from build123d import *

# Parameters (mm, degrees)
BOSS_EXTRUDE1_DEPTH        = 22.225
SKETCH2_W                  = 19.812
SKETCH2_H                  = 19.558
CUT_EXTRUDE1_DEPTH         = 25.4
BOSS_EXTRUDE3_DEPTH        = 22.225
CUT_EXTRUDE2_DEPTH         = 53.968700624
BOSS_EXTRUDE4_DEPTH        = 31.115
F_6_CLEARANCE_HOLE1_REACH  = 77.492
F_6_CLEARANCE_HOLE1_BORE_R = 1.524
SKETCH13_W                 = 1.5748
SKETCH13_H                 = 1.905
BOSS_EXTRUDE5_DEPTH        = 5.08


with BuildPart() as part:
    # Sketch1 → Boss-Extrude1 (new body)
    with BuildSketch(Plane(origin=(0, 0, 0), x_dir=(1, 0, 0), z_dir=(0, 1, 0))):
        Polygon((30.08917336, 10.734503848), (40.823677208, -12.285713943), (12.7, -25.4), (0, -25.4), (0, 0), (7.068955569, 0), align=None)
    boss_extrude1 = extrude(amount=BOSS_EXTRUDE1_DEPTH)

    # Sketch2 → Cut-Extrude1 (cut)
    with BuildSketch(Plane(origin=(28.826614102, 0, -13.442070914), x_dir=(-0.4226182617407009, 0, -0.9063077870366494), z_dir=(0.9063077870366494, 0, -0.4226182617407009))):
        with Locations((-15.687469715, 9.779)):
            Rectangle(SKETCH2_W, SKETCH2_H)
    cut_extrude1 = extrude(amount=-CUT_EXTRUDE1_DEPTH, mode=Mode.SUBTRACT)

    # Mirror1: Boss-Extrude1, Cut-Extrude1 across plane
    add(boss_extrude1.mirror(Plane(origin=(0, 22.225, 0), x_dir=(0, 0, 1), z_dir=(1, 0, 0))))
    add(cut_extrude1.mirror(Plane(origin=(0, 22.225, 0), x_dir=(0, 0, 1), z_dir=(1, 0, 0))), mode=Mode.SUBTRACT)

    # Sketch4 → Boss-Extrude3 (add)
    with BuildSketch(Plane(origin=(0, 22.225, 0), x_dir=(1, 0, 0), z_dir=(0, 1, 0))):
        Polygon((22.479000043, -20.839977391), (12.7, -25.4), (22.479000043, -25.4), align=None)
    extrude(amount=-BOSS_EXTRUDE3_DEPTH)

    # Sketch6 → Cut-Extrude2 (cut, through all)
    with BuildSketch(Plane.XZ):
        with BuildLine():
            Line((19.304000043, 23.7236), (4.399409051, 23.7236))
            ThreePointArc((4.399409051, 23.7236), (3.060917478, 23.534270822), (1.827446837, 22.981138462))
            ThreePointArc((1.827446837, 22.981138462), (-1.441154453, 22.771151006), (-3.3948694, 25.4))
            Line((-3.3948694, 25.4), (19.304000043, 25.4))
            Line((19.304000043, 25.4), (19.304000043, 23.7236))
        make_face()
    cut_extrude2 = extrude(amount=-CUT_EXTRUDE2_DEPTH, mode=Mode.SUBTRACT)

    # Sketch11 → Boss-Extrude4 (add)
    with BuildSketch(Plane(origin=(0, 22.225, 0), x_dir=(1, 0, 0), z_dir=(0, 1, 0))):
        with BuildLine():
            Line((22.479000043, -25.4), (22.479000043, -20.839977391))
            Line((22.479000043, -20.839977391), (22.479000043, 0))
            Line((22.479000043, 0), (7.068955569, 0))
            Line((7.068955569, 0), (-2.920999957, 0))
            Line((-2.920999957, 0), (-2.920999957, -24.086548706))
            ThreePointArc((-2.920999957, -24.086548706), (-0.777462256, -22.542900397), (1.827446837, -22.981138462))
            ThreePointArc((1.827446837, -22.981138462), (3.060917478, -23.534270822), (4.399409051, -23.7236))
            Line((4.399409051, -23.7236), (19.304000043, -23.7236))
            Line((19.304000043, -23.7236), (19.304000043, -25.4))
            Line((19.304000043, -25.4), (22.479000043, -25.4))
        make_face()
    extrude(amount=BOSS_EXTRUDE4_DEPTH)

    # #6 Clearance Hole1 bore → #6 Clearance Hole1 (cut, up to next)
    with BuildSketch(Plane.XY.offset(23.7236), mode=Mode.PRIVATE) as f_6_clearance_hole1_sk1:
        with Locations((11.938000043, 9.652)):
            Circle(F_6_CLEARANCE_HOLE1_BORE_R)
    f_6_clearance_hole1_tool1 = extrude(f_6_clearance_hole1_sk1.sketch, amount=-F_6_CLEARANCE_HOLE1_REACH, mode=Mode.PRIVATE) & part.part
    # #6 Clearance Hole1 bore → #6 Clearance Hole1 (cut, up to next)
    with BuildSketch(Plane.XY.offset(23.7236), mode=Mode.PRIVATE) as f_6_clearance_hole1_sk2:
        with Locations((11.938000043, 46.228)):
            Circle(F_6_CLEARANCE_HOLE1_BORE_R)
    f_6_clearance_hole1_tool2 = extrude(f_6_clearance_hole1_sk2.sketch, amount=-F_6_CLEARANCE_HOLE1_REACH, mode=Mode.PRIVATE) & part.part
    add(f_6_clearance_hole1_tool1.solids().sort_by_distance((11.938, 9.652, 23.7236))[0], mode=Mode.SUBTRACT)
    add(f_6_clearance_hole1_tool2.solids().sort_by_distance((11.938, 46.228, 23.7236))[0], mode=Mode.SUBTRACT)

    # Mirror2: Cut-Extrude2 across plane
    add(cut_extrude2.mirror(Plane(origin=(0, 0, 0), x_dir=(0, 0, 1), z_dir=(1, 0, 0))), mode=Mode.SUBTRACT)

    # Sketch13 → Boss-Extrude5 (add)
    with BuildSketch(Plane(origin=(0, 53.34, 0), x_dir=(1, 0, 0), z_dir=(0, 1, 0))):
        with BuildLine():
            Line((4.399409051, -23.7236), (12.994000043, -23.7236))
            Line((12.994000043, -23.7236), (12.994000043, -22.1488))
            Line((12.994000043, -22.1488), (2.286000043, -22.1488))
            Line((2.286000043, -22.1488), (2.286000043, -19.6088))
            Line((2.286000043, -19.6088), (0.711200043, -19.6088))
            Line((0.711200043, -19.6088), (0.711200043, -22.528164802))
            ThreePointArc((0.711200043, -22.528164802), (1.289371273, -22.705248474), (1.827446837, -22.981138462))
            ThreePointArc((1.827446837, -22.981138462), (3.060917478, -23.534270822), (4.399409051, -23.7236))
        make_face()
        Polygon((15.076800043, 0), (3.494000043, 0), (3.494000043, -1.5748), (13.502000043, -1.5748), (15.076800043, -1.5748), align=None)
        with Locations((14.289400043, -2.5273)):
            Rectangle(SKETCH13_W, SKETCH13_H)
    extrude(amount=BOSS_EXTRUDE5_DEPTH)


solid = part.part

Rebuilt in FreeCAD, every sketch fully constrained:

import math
import FreeCAD as App
import Part
import Sketcher
from FreeCAD import Vector
Q = App.Units.Quantity


def add_polygon(sketch, points):
    """Adds a closed chain of lines whose ends are joined by coincident constraints."""
    first, n = sketch.GeometryCount, len(points)
    for a, b in zip(points, points[1:] + points[:1]):
        sketch.addGeometry(Part.LineSegment(App.Vector(*a, 0), App.Vector(*b, 0)), False)
    for i in range(n):
        sketch.addConstraint(Sketcher.Constraint("Coincident", first + i, 2, first + (i + 1) % n, 1))

doc = App.newDocument("Part")
params = doc.addObject("Spreadsheet::Sheet", "Params")
for row, (alias, value) in enumerate([
    ("sketch1_height", "1 in"),
    ("sketch1_length", "1 in"),
    ("sketch1_width", "0.5 in"),
    ("pad1_length", "0.875 in"),
    ("sketch2_width", "0.78 in"),
    ("sketch2_height", "0.77 in"),
    ("pocket1_length", "1 in"),
    ("sketch3_width", "0.385 in"),
    ("pad2_length", "0.875 in"),
    ("sketch4_radius", "0.19 in"),
    ("sketch4_radius2", "0.135 in"),
    ("sketch4_height", "0.066 in"),
    ("sketch5_width", "1 in"),
    ("sketch5_radius", "0.19 in"),
    ("sketch5_radius2", "0.135 in"),
    ("sketch5_width2", "0.125 in"),
    ("sketch5_height", "0.066 in"),
    ("pad3_length", "1.225 in"),
    ("sketch6_diameter", "0.12 in"),
    ("sketch7_diameter", "0.12 in"),
    ("sketch8_radius", "0.19 in"),
    ("sketch8_height", "0.1 in"),
    ("sketch8_radius2", "0.135 in"),
    ("sketch8_width", "0.062 in"),
    ("sketch8_height2", "0.075 in"),
    ("pad4_length", "0.2 in"),
], start=1):
    params.set(f"A{row}", alias)
    params.set(f"B{row}", "=" + value)
    params.setAlias(f"B{row}", alias)

body = doc.addObject("PartDesign::Body", "Body")

sketch1 = doc.addObject("Sketcher::SketchObject", "Sketch")
body.addObject(sketch1)
sketch1.AttachmentSupport = (doc.XZ_Plane, [""])
sketch1.MapMode = "FlatFace"
add_polygon(sketch1, [(41, 12), (30, -11), (7, 0), (0, 0), (0, 25), (13, 25)])
sketch1.addConstraint([
    Sketcher.Constraint("Horizontal", 2),
    Sketcher.Constraint("Vertical", 3),
    Sketcher.Constraint("Horizontal", 4),
    Sketcher.Constraint("Coincident", 2, 2, -1, 1),
    Sketcher.Constraint("Perpendicular", 0, 1),
    Sketcher.Constraint("Parallel", 1, 5),
    Sketcher.Constraint("Equal", 0, 1),
    Sketcher.Constraint("DistanceY", 3, 1, 3, 2, Q("1 in")),
    Sketcher.Constraint("Distance", 0, Q("1 in")),
    Sketcher.Constraint("DistanceX", 4, 1, 4, 2, Q("0.5 in")),
    Sketcher.Constraint("Angle", 0, Q("-115 deg")),
])
sketch1.setExpression("Constraints[13]", "Params.sketch1_height")
sketch1.setExpression("Constraints[14]", "Params.sketch1_length")
sketch1.setExpression("Constraints[15]", "Params.sketch1_width")
pad1 = doc.addObject("PartDesign::Pad", "Pad")
body.addObject(pad1)
pad1.Profile = sketch1
pad1.setExpression("Length", "Params.pad1_length")
pad1.Reversed = True

sketch2 = doc.addObject("Sketcher::SketchObject", "Sketch001")
body.addObject(sketch2)
sketch2.Placement = App.Placement(Vector(28.826614, 0, -13.442071), App.Rotation(Vector(-0.422618262, 0, -0.906307787), Vector(0, 1, 0), Vector(0.906307787, 0, -0.422618262), "ZXY"))
add_polygon(sketch2, [(-26, 20), (-26, 0), (-6, 0), (-6, 20)])
sketch2.addConstraint([
    Sketcher.Constraint("Vertical", 0),
    Sketcher.Constraint("Horizontal", 1),
    Sketcher.Constraint("Vertical", 2),
    Sketcher.Constraint("Horizontal", 3),
    Sketcher.Constraint("PointOnObject", 0, 2, -1),
    Sketcher.Constraint("DistanceX", 1, 1, 1, 2, Q("0.78 in")),
    Sketcher.Constraint("DistanceY", 0, 2, 0, 1, Q("0.77 in")),
    Sketcher.Constraint("DistanceX", 0, 2, -1, 1, 25.59347),
])
sketch2.setExpression("Constraints[9]", "Params.sketch2_width")
sketch2.setExpression("Constraints[10]", "Params.sketch2_height")
pocket1 = doc.addObject("PartDesign::Pocket", "Pocket")
body.addObject(pocket1)
pocket1.Profile = sketch2
pocket1.setExpression("Length", "Params.pocket1_length")
doc.recompute()

mirrored = doc.addObject("PartDesign::Mirrored", "Mirrored")
body.addObject(mirrored)
mirrored.Originals = [pad1, pocket1]
mirrored.MirrorPlane = (doc.YZ_Plane, [""])
body.Tip = mirrored

sketch3 = doc.addObject("Sketcher::SketchObject", "Sketch002")
body.addObject(sketch3)
sketch3.AttachmentSupport = (doc.XZ_Plane, [""])
sketch3.MapMode = "FlatFace"
sketch3.AttachmentOffset = App.Placement(Vector(0, 0, -0.875 * 25.4), App.Rotation())
add_polygon(sketch3, [(22.5, 20.8), (12.7, 25.4), (22.5, 25.4)])
sketch3.addConstraint([
    Sketcher.Constraint("Horizontal", 1),
    Sketcher.Constraint("Vertical", 2),
    Sketcher.Constraint("DistanceY", -1, 1, 0, 2, Q("1 in")),
    Sketcher.Constraint("Angle", 0, Q("155 deg")),
    Sketcher.Constraint("DistanceX", -1, 1, 0, 2, Q("0.5 in")),
    Sketcher.Constraint("DistanceX", 1, 1, 1, 2, Q("0.385 in")),
])
sketch3.setExpression("Constraints[8]", "Params.sketch3_width")
pad2 = doc.addObject("PartDesign::Pad", "Pad001")
body.addObject(pad2)
pad2.Profile = sketch3
pad2.setExpression("Length", "Params.pad2_length")

sketch4 = doc.addObject("Sketcher::SketchObject", "Sketch003")
body.addObject(sketch4)
sketch4.AttachmentSupport = (doc.XZ_Plane, [""])
sketch4.MapMode = "FlatFace"
sketch4.addGeometry([
    Part.LineSegment(Vector(4.4, 23.7, 0), Vector(19.3, 23.7, 0)),
    Part.LineSegment(Vector(19.3, 23.7, 0), Vector(19.3, 25.4, 0)),
    Part.LineSegment(Vector(19.3, 25.4, 0), Vector(-3.4, 25.4, 0)),
    Part.ArcOfCircle(Part.Circle(Vector(0, 25.9, 0), Vector(0, 0, 1), 3.4), math.radians(-172), math.radians(-58)),
    Part.ArcOfCircle(Part.Circle(Vector(4.4, 18.9, 0), Vector(0, 0, 1), 4.8), math.radians(90), math.radians(122)),
], False)
sketch4.addConstraint([
    Sketcher.Constraint("Coincident", 0, 2, 1, 1),
    Sketcher.Constraint("Coincident", 1, 2, 2, 1),
    Sketcher.Constraint("Coincident", 2, 2, 3, 1),
    Sketcher.Constraint("Tangent", 3, 2, 4, 2),
    Sketcher.Constraint("Tangent", 4, 1, 0, 1),
    Sketcher.Constraint("Horizontal", 0),
    Sketcher.Constraint("Vertical", 1),
    Sketcher.Constraint("Horizontal", 2),
    Sketcher.Constraint("PointOnObject", 3, 3, -2),
    Sketcher.Constraint("Radius", 4, Q("0.19 in")),
    Sketcher.Constraint("DistanceY", -1, 1, 1, 2, Q("1 in")),
    Sketcher.Constraint("Radius", 3, Q("0.135 in")),
    Sketcher.Constraint("DistanceY", 1, 1, 1, 2, Q("0.066 in")),
    Sketcher.Constraint("DistanceX", -1, 1, 0, 2, Q("0.76 in")),
    Sketcher.Constraint("DistanceY", -1, 1, 3, 3, Q("1.019 in")),
])
sketch4.setExpression("Constraints[9]", "Params.sketch4_radius")
sketch4.setExpression("Constraints[11]", "Params.sketch4_radius2")
sketch4.setExpression("Constraints[12]", "Params.sketch4_height")
pocket2 = doc.addObject("PartDesign::Pocket", "Pocket001")
body.addObject(pocket2)
pocket2.Profile = sketch4
pocket2.Type = "ThroughAll"

sketch5 = doc.addObject("Sketcher::SketchObject", "Sketch004")
body.addObject(sketch5)
sketch5.AttachmentSupport = (doc.XZ_Plane, [""])
sketch5.MapMode = "FlatFace"
sketch5.AttachmentOffset = App.Placement(Vector(0, 0, -0.875 * 25.4), App.Rotation())
sketch5.addGeometry([
    Part.LineSegment(Vector(22.5, 25.4, 0), Vector(22.5, 0, 0)),
    Part.LineSegment(Vector(22.5, 0, 0), Vector(-2.9, 0, 0)),
    Part.LineSegment(Vector(-2.9, 0, 0), Vector(-2.9, 24.1, 0)),
    Part.ArcOfCircle(Part.Circle(Vector(0, 25.9, 0), Vector(0, 0, 1), 3.4), math.radians(-148), math.radians(-58)),
    Part.ArcOfCircle(Part.Circle(Vector(4.4, 18.9, 0), Vector(0, 0, 1), 4.8), math.radians(90), math.radians(122)),
    Part.LineSegment(Vector(4.4, 23.7, 0), Vector(19.3, 23.7, 0)),
    Part.LineSegment(Vector(19.3, 23.7, 0), Vector(19.3, 25.4, 0)),
    Part.LineSegment(Vector(19.3, 25.4, 0), Vector(22.5, 25.4, 0)),
], False)
sketch5.addConstraint([
    Sketcher.Constraint("Coincident", 0, 2, 1, 1),
    Sketcher.Constraint("Coincident", 1, 2, 2, 1),
    Sketcher.Constraint("Coincident", 2, 2, 3, 1),
    Sketcher.Constraint("Tangent", 3, 2, 4, 2),
    Sketcher.Constraint("Tangent", 4, 1, 5, 1),
    Sketcher.Constraint("Coincident", 5, 2, 6, 1),
    Sketcher.Constraint("Coincident", 6, 2, 7, 1),
    Sketcher.Constraint("Coincident", 7, 2, 0, 1),
    Sketcher.Constraint("Vertical", 0),
    Sketcher.Constraint("Horizontal", 1),
    Sketcher.Constraint("Vertical", 2),
    Sketcher.Constraint("Horizontal", 5),
    Sketcher.Constraint("Vertical", 6),
    Sketcher.Constraint("Horizontal", 7),
    Sketcher.Constraint("PointOnObject", 3, 3, -2),
    Sketcher.Constraint("PointOnObject", 0, 2, -1),
    Sketcher.Constraint("Equal", 1, 0),
    Sketcher.Constraint("DistanceX", 1, 2, 1, 1, Q("1 in")),
    Sketcher.Constraint("Radius", 4, Q("0.19 in")),
    Sketcher.Constraint("Radius", 3, Q("0.135 in")),
    Sketcher.Constraint("DistanceX", 7, 1, 7, 2, Q("0.125 in")),
    Sketcher.Constraint("DistanceY", 6, 1, 6, 2, Q("0.066 in")),
    Sketcher.Constraint("DistanceX", -1, 1, 5, 2, Q("0.76 in")),
    Sketcher.Constraint("DistanceY", -1, 1, 3, 3, Q("1.019 in")),
])
sketch5.setExpression("Constraints[17]", "Params.sketch5_width")
sketch5.setExpression("Constraints[18]", "Params.sketch5_radius")
sketch5.setExpression("Constraints[19]", "Params.sketch5_radius2")
sketch5.setExpression("Constraints[20]", "Params.sketch5_width2")
sketch5.setExpression("Constraints[21]", "Params.sketch5_height")
pad3 = doc.addObject("PartDesign::Pad", "Pad002")
body.addObject(pad3)
pad3.Profile = sketch5
pad3.setExpression("Length", "Params.pad3_length")
pad3.Reversed = True

sketch6 = doc.addObject("Sketcher::SketchObject", "Sketch005")
body.addObject(sketch6)
sketch6.AttachmentSupport = (doc.XY_Plane, [""])
sketch6.MapMode = "FlatFace"
sketch6.AttachmentOffset = App.Placement(Vector(0, 0, 0.934 * 25.4), App.Rotation())
sketch6.addGeometry(Part.Circle(Vector(11.9, 9.7, 0), Vector(0, 0, 1), 1.5), False)
sketch6.addConstraint([
    Sketcher.Constraint("Diameter", 0, Q("0.12 in")),
    Sketcher.Constraint("DistanceX", -1, 1, 0, 3, Q("0.47 in")),
    Sketcher.Constraint("DistanceY", -1, 1, 0, 3, Q("0.38 in")),
])
sketch6.setExpression("Constraints[0]", "Params.sketch6_diameter")
pocket3 = doc.addObject("PartDesign::Pocket", "Pocket002")
body.addObject(pocket3)
pocket3.Profile = sketch6
pocket3.Type = "UpToFirst"

sketch7 = doc.addObject("Sketcher::SketchObject", "Sketch006")
body.addObject(sketch7)
sketch7.AttachmentSupport = (doc.XY_Plane, [""])
sketch7.MapMode = "FlatFace"
sketch7.AttachmentOffset = App.Placement(Vector(0, 0, 0.934 * 25.4), App.Rotation())
sketch7.addGeometry(Part.Circle(Vector(11.9, 46.2, 0), Vector(0, 0, 1), 1.5), False)
sketch7.addConstraint([
    Sketcher.Constraint("Diameter", 0, Q("0.12 in")),
    Sketcher.Constraint("DistanceX", -1, 1, 0, 3, Q("0.47 in")),
    Sketcher.Constraint("DistanceY", -1, 1, 0, 3, Q("1.82 in")),
])
sketch7.setExpression("Constraints[0]", "Params.sketch7_diameter")
pocket4 = doc.addObject("PartDesign::Pocket", "Pocket003")
body.addObject(pocket4)
pocket4.Profile = sketch7
pocket4.Type = "UpToFirst"
doc.recompute()

mirrored2 = doc.addObject("PartDesign::Mirrored", "Mirrored001")
body.addObject(mirrored2)
mirrored2.Originals = [pocket2]
mirrored2.MirrorPlane = (doc.YZ_Plane, [""])
body.Tip = mirrored2

sketch8 = doc.addObject("Sketcher::SketchObject", "Sketch007")
body.addObject(sketch8)
sketch8.AttachmentSupport = (doc.XZ_Plane, [""])
sketch8.MapMode = "FlatFace"
sketch8.AttachmentOffset = App.Placement(Vector(0, 0, -2.1 * 25.4), App.Rotation())
sketch8.addGeometry(Part.LineSegment(Vector(4.4, 23.7, 0), Vector(13, 23.7, 0)), False)
sketch8.addGeometry(Part.LineSegment(Vector(13, 23.7, 0), Vector(13, 22.1, 0)), False)
sketch8.addGeometry(Part.LineSegment(Vector(13, 22.1, 0), Vector(2.3, 22.1, 0)), False)
sketch8.addGeometry(Part.LineSegment(Vector(2.3, 22.1, 0), Vector(2.3, 19.6, 0)), False)
sketch8.addGeometry(Part.LineSegment(Vector(2.3, 19.6, 0), Vector(0.7, 19.6, 0)), False)
sketch8.addGeometry(Part.LineSegment(Vector(0.7, 19.6, 0), Vector(0.7, 22.5, 0)), False)
sketch8.addGeometry(Part.ArcOfCircle(Part.Circle(Vector(0, 25.9, 0), Vector(0, 0, 1), 3.4), math.radians(-78), math.radians(-58)), False)
sketch8.addGeometry(Part.ArcOfCircle(Part.Circle(Vector(4.4, 18.9, 0), Vector(0, 0, 1), 4.8), math.radians(90), math.radians(122)), False)
add_polygon(sketch8, [(15.1, 0), (3.5, 0), (3.5, 1.6), (13.5, 1.6), (13.5, 3.5), (15.1, 3.5)])
sketch8.addConstraint([
    Sketcher.Constraint("Coincident", 0, 2, 1, 1),
    Sketcher.Constraint("Coincident", 1, 2, 2, 1),
    Sketcher.Constraint("Coincident", 2, 2, 3, 1),
    Sketcher.Constraint("Coincident", 3, 2, 4, 1),
    Sketcher.Constraint("Coincident", 4, 2, 5, 1),
    Sketcher.Constraint("Coincident", 5, 2, 6, 1),
    Sketcher.Constraint("Tangent", 6, 2, 7, 2),
    Sketcher.Constraint("Tangent", 7, 1, 0, 1),
    Sketcher.Constraint("Horizontal", 0),
    Sketcher.Constraint("Vertical", 1),
    Sketcher.Constraint("Horizontal", 2),
    Sketcher.Constraint("Vertical", 3),
    Sketcher.Constraint("Horizontal", 4),
    Sketcher.Constraint("Vertical", 5),
    Sketcher.Constraint("Horizontal", 8),
    Sketcher.Constraint("Vertical", 9),
    Sketcher.Constraint("Horizontal", 10),
    Sketcher.Constraint("Vertical", 11),
    Sketcher.Constraint("Horizontal", 12),
    Sketcher.Constraint("Vertical", 13),
    Sketcher.Constraint("PointOnObject", 6, 3, -2),
    Sketcher.Constraint("PointOnObject", 8, 2, -1),
    Sketcher.Constraint("Equal", 4, 12),
    Sketcher.Constraint("Equal", 12, 1),
    Sketcher.Constraint("Equal", 1, 9),
    Sketcher.Constraint("Radius", 7, Q("0.19 in")),
    Sketcher.Constraint("DistanceY", 3, 2, 3, 1, Q("0.1 in")),
    Sketcher.Constraint("Radius", 6, Q("0.135 in")),
    Sketcher.Constraint("DistanceX", 4, 2, 4, 1, Q("0.062 in")),
    Sketcher.Constraint("DistanceY", 11, 1, 11, 2, Q("0.075 in")),
    Sketcher.Constraint("DistanceX", -1, 1, 2, 2, Q("0.09 in")),
    Sketcher.Constraint("DistanceY", 9, 2, 3, 2, Q("0.71 in")),
    Sketcher.Constraint("DistanceX", 1, 2, 10, 2, Q("0.02 in")),
    Sketcher.Constraint("DistanceY", -1, 1, 6, 3, Q("1.019 in")),
    Sketcher.Constraint("DistanceX", 2, 2, 2, 1, 10.708),
    Sketcher.Constraint("DistanceX", 8, 2, 8, 1, 11.5828),
])
sketch8.setExpression("Constraints[31]", "Params.sketch8_radius")
sketch8.setExpression("Constraints[32]", "Params.sketch8_height")
sketch8.setExpression("Constraints[33]", "Params.sketch8_radius2")
sketch8.setExpression("Constraints[34]", "Params.sketch8_width")
sketch8.setExpression("Constraints[35]", "Params.sketch8_height2")
pad4 = doc.addObject("PartDesign::Pad", "Pad003")
body.addObject(pad4)
pad4.Profile = sketch8
pad4.setExpression("Length", "Params.pad4_length")
pad4.Reversed = True

doc.recompute()
